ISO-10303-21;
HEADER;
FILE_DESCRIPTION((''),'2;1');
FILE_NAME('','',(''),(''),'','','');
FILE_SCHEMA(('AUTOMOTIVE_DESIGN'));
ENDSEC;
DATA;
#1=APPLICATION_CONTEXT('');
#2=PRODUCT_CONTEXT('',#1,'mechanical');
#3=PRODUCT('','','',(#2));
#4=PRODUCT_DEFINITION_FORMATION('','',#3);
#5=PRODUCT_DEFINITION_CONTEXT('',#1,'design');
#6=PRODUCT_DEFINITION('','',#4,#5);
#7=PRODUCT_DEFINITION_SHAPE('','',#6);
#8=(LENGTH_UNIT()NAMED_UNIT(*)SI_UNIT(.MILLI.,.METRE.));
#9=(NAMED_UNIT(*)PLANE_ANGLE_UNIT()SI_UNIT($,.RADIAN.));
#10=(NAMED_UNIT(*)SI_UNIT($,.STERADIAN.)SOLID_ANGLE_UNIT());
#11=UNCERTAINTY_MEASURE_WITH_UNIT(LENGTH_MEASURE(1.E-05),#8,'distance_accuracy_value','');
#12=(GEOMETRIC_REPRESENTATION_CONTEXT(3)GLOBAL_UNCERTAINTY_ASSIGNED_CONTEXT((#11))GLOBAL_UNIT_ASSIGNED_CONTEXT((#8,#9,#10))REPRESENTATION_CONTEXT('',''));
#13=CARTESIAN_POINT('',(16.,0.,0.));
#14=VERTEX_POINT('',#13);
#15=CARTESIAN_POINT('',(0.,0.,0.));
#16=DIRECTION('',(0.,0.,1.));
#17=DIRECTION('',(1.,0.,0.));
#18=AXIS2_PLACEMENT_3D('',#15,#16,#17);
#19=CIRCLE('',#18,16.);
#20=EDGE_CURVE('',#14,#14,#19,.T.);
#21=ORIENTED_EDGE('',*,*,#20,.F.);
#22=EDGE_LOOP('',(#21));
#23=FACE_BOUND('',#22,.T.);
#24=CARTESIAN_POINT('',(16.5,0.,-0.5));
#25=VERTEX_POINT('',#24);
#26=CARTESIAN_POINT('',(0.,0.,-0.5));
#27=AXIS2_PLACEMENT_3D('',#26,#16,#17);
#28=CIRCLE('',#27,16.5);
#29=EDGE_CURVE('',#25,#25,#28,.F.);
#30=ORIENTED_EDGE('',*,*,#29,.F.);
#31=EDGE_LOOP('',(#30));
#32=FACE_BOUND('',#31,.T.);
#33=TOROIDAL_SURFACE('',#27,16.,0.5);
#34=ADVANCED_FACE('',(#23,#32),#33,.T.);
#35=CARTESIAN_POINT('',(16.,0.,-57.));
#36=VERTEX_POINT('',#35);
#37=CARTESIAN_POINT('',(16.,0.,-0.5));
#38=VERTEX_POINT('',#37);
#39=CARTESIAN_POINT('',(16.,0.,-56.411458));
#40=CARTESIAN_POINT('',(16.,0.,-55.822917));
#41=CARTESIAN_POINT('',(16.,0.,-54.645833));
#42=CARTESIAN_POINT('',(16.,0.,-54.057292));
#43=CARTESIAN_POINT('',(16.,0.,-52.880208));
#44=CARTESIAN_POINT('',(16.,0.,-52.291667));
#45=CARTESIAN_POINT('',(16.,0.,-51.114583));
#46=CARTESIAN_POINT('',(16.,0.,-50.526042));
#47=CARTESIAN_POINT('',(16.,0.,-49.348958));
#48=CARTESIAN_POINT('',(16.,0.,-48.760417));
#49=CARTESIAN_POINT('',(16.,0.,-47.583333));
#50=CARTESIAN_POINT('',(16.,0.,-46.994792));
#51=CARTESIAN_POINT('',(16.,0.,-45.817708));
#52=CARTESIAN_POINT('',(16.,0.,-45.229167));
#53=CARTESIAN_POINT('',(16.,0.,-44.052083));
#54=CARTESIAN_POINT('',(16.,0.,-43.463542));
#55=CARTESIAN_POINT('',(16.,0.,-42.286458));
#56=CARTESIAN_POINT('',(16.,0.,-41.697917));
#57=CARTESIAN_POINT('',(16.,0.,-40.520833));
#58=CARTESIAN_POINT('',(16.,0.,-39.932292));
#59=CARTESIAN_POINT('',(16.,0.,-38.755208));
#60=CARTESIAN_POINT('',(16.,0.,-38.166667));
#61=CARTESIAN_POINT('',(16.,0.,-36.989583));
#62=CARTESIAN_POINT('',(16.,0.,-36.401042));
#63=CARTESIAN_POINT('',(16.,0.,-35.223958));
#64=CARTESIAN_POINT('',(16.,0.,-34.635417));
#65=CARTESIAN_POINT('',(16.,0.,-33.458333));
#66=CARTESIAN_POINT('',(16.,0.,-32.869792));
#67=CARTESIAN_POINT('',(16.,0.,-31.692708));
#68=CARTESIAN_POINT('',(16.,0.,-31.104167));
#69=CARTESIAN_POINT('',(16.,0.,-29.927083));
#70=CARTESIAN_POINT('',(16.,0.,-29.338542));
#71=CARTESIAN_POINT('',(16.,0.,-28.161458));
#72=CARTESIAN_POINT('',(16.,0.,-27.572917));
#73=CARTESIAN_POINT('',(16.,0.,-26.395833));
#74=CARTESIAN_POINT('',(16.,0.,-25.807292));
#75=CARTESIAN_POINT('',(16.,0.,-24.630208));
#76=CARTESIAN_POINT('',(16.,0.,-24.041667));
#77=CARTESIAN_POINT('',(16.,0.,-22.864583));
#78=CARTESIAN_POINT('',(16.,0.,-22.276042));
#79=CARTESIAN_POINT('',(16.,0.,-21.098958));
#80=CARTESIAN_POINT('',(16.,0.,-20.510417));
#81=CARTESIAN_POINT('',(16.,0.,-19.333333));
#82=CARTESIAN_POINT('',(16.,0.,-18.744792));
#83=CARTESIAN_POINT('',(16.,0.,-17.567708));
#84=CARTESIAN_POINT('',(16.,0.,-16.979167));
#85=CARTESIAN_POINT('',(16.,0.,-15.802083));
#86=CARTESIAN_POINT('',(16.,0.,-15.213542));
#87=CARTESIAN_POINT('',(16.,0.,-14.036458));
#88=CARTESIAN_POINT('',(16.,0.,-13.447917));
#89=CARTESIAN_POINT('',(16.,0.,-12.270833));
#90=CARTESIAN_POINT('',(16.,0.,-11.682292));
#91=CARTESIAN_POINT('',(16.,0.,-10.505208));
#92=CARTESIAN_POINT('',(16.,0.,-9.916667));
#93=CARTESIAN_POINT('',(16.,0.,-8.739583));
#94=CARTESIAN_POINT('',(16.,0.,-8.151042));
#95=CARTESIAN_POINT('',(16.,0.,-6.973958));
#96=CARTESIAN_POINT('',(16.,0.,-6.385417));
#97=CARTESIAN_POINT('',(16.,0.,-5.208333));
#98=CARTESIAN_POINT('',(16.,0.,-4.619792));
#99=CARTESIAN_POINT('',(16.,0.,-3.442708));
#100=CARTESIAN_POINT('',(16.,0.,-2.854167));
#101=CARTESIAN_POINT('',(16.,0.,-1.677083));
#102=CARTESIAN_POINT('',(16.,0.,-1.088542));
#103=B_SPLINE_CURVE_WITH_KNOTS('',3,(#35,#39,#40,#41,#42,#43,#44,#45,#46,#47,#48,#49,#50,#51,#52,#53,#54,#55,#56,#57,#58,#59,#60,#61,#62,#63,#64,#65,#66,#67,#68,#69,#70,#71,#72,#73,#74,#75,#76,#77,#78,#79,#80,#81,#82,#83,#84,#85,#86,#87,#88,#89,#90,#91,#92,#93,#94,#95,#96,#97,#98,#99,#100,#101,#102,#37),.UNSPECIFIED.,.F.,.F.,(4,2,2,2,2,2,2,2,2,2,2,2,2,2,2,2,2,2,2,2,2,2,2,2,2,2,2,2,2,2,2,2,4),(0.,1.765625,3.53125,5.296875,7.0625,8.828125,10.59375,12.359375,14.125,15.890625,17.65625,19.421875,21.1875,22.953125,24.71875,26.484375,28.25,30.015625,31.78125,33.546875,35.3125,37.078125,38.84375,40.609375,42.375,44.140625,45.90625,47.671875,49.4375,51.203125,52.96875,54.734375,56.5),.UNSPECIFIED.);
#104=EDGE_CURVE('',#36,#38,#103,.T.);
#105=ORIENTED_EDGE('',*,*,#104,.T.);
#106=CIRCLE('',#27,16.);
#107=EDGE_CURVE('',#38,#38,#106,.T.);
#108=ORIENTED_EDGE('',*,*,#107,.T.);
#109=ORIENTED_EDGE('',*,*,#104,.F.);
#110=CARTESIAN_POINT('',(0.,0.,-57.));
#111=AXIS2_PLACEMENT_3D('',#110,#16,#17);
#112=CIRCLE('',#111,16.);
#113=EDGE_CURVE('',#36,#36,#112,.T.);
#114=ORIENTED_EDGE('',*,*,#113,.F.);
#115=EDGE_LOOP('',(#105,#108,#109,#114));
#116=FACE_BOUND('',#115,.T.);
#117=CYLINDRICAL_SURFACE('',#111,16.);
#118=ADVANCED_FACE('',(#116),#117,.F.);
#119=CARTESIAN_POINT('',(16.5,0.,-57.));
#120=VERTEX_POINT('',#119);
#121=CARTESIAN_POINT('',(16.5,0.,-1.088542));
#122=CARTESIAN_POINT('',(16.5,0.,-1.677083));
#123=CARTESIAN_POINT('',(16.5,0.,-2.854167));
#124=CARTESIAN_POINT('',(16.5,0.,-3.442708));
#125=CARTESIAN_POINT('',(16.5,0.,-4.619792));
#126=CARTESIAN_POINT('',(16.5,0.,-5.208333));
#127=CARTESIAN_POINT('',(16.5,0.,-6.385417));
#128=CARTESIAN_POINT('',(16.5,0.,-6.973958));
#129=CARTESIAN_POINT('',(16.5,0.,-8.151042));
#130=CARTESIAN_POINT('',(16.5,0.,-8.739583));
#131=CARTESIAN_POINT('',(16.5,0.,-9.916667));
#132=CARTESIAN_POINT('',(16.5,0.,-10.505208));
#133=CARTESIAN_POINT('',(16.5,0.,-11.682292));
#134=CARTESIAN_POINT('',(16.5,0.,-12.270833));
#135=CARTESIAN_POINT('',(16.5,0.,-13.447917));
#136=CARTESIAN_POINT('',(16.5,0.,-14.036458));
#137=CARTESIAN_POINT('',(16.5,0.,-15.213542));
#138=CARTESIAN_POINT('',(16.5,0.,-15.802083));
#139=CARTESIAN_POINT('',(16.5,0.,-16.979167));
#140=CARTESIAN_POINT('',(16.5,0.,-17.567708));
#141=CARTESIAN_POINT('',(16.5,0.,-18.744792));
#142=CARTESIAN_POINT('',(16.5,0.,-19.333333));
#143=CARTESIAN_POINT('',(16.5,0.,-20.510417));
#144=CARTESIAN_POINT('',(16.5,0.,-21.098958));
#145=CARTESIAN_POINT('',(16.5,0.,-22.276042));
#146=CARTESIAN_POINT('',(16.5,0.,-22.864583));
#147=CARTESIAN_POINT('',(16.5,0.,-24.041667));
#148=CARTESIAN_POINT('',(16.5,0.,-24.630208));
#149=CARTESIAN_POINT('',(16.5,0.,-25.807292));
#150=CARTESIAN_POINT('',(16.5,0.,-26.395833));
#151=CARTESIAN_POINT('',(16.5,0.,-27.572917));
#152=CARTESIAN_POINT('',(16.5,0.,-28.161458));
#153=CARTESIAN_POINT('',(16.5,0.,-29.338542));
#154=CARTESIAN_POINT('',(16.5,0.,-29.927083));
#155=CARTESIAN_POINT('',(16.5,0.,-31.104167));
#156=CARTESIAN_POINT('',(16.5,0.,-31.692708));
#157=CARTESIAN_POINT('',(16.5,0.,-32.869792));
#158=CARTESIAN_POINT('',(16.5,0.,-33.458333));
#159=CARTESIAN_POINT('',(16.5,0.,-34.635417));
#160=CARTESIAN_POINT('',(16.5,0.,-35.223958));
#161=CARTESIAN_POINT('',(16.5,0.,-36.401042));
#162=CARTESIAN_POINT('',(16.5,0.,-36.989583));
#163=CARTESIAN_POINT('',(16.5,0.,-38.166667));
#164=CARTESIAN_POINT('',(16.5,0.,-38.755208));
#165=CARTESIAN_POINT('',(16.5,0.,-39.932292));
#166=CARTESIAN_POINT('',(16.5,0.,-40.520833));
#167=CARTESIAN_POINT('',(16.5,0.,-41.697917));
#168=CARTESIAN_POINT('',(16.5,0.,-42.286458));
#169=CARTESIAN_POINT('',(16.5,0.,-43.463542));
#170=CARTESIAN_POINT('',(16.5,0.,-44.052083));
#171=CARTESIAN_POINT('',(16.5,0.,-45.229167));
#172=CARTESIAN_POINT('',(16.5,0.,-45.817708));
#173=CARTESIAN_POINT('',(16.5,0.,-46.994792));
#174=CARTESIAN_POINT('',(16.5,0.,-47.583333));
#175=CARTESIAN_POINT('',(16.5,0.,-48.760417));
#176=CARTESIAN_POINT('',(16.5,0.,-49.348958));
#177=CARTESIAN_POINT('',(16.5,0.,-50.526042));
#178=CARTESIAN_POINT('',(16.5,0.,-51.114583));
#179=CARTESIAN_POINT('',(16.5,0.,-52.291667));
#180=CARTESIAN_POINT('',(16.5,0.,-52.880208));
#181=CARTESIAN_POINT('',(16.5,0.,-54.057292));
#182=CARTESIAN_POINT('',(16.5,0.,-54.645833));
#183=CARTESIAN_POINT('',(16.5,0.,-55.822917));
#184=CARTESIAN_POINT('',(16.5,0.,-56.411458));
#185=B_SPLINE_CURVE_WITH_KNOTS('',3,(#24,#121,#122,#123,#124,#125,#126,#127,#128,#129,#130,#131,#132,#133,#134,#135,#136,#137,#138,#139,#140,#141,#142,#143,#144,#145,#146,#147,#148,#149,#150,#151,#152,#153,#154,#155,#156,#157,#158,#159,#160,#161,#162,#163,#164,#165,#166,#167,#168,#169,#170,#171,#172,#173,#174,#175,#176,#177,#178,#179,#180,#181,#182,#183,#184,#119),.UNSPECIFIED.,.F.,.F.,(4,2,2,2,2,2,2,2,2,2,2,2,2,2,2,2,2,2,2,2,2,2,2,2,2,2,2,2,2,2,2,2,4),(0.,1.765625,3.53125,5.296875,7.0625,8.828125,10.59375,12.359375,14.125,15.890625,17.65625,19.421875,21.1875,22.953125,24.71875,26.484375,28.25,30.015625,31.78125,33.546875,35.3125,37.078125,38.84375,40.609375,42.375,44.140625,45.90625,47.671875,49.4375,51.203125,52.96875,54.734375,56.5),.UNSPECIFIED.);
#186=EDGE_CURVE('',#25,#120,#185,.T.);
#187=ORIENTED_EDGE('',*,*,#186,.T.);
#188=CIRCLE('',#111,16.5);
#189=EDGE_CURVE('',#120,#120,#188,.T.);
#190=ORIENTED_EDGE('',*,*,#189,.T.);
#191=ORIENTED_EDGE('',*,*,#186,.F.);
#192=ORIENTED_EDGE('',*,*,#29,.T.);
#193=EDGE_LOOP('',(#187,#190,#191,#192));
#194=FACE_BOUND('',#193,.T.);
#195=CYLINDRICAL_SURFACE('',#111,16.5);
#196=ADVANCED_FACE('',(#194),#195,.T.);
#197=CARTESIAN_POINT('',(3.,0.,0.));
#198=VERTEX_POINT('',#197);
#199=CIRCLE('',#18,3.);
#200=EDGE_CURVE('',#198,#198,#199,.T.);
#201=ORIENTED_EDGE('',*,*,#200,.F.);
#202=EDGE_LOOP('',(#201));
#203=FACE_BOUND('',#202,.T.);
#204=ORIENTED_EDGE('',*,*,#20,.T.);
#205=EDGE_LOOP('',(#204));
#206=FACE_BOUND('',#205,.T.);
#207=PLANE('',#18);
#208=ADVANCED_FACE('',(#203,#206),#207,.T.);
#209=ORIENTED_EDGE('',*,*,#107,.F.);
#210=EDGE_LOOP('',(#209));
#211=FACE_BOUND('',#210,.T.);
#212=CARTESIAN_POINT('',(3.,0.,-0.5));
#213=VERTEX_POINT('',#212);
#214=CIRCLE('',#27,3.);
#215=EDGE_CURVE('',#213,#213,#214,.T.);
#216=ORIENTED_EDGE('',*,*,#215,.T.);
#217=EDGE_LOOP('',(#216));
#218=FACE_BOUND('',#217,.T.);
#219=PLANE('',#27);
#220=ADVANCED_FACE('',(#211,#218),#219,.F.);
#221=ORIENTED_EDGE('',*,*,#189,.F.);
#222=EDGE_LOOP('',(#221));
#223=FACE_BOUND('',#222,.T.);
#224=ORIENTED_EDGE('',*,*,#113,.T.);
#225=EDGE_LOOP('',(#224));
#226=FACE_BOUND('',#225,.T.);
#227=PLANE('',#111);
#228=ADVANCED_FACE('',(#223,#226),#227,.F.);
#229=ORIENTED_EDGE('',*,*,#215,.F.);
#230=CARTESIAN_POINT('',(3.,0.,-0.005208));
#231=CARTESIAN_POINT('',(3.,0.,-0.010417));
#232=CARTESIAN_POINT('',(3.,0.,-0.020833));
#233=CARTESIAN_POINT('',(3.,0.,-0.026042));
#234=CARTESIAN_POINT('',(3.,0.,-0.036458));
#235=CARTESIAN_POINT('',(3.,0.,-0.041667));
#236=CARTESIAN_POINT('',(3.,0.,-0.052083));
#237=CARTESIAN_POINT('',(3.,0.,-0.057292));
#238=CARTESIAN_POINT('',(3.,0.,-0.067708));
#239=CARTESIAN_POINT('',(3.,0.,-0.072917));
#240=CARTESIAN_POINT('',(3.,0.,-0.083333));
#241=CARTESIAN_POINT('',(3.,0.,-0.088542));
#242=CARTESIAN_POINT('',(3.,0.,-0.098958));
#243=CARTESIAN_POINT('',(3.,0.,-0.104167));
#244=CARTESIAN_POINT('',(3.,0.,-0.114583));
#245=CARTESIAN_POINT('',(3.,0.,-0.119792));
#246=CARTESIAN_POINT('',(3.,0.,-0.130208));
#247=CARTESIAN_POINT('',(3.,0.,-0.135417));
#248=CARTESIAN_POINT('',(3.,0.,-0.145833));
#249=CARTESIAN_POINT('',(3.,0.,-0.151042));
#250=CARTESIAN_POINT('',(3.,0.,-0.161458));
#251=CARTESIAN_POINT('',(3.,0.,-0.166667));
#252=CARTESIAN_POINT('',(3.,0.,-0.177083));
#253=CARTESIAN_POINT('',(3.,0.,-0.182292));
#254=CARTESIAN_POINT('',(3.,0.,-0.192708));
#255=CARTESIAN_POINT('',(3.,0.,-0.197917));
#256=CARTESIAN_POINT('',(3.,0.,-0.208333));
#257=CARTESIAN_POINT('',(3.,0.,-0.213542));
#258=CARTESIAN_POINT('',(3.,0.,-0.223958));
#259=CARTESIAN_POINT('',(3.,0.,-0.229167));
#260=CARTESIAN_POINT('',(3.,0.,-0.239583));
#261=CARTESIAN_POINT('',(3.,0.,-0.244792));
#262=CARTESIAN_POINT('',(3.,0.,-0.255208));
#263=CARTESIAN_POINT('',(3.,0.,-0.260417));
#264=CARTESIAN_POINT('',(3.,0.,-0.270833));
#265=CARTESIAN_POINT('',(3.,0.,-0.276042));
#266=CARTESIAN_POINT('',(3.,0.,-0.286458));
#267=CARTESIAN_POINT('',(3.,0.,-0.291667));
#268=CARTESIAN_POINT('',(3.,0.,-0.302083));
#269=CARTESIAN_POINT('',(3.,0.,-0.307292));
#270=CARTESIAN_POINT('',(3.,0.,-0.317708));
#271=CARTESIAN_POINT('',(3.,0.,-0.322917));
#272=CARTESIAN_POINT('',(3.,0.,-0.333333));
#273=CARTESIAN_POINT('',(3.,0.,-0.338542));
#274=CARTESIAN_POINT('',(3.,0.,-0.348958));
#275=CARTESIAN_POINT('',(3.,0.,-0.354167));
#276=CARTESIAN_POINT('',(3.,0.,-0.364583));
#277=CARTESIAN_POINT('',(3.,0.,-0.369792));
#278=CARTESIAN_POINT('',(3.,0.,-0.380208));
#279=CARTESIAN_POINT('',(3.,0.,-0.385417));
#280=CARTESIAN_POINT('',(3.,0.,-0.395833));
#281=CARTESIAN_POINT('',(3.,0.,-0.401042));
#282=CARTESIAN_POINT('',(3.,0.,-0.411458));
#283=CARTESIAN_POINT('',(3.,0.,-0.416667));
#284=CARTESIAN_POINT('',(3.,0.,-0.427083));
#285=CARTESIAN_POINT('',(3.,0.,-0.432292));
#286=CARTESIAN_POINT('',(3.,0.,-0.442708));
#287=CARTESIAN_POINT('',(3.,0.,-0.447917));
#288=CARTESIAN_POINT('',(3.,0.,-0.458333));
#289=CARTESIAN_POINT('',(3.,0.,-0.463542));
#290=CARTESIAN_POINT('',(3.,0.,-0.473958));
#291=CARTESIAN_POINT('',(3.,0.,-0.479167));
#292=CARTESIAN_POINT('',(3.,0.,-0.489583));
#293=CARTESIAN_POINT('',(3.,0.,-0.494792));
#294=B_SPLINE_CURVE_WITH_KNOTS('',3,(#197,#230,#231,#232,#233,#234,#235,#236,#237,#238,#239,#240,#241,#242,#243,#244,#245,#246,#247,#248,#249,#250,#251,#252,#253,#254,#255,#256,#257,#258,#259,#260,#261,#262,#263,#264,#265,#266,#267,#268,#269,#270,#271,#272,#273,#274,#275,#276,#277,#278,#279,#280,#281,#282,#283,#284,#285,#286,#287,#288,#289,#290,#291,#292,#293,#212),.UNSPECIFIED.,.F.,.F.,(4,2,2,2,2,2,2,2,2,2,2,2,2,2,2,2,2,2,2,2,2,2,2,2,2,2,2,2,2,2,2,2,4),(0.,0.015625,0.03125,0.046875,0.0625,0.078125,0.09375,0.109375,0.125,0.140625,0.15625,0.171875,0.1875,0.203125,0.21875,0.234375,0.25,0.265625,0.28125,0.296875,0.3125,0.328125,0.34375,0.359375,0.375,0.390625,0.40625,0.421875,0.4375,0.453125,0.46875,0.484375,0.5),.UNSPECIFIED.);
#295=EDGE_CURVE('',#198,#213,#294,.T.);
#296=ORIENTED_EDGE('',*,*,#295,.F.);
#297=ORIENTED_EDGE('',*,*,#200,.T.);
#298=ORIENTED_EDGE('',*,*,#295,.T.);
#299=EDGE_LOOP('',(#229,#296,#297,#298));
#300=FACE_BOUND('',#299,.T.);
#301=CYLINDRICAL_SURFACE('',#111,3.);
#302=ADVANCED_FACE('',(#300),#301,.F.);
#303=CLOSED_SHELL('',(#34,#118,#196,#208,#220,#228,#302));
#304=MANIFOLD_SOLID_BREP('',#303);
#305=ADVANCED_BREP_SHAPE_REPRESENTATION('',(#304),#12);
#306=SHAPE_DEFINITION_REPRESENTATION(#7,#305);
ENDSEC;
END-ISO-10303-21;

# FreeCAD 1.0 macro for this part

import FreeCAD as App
import Part
import Sketcher
from FreeCAD import Vector


def edges_at(feature, points):
    """Names of the edges that pass closest to the given points."""
    edges = feature.Shape.Edges
    near = lambda p: min(range(len(edges)), key=lambda i: edges[i].distToShape(Part.Vertex(*p))[0])
    return sorted({f"Edge{near(p) + 1}" for p in points})


def faces_at(feature, points):
    """Names of the faces that lie closest to the given points."""
    faces = feature.Shape.Faces
    near = lambda p: min(range(len(faces)), key=lambda i: faces[i].distToShape(Part.Vertex(*p))[0])
    return sorted({f"Face{near(p) + 1}" for p in points})

doc = App.newDocument("Part")
body = doc.addObject("PartDesign::Body", "Body")

sketch1 = doc.addObject("Sketcher::SketchObject", "Sketch")
body.addObject(sketch1)
sketch1.AttachmentSupport = (doc.XY_Plane, [""])
sketch1.MapMode = "FlatFace"
sketch1.addGeometry(Part.Circle(Vector(0, 0, 0), Vector(0, 0, 1), 16), False)
sketch1.addConstraint([
    Sketcher.Constraint("Coincident", 0, 3, -1, 1),
    Sketcher.Constraint("Diameter", 0, 33.0),
])
pad1 = doc.addObject("PartDesign::Pad", "Pad")
body.addObject(pad1)
pad1.Profile = sketch1
pad1.Length = 57
pad1.Reversed = True
doc.recompute()

thickness = doc.addObject("PartDesign::Thickness", "Thickness")
body.addObject(thickness)
thickness.Base = (pad1, faces_at(pad1, [(0, 0, -57)]))
thickness.Value = 0.5
thickness.Reversed = True
thickness.Join = "Intersection"

sketch2 = doc.addObject("Sketcher::SketchObject", "Sketch001")
body.addObject(sketch2)
sketch2.AttachmentSupport = (doc.XY_Plane, [""])
sketch2.MapMode = "FlatFace"
sketch2.addGeometry(Part.Circle(Vector(0, 0, 0), Vector(0, 0, 1), 3), False)
sketch2.addConstraint([
    Sketcher.Constraint("Coincident", 0, 3, -1, 1),
    Sketcher.Constraint("Diameter", 0, 6.0),
])
pocket1 = doc.addObject("PartDesign::Pocket", "Pocket")
body.addObject(pocket1)
pocket1.Profile = sketch2
pocket1.Type = "ThroughAll"
doc.recompute()

fillet = doc.addObject("PartDesign::Fillet", "Fillet")
body.addObject(fillet)
fillet.Base = (pocket1, edges_at(pocket1, [(-16.5, 0, 0)]))
fillet.Radius = 0.5

doc.recompute()
